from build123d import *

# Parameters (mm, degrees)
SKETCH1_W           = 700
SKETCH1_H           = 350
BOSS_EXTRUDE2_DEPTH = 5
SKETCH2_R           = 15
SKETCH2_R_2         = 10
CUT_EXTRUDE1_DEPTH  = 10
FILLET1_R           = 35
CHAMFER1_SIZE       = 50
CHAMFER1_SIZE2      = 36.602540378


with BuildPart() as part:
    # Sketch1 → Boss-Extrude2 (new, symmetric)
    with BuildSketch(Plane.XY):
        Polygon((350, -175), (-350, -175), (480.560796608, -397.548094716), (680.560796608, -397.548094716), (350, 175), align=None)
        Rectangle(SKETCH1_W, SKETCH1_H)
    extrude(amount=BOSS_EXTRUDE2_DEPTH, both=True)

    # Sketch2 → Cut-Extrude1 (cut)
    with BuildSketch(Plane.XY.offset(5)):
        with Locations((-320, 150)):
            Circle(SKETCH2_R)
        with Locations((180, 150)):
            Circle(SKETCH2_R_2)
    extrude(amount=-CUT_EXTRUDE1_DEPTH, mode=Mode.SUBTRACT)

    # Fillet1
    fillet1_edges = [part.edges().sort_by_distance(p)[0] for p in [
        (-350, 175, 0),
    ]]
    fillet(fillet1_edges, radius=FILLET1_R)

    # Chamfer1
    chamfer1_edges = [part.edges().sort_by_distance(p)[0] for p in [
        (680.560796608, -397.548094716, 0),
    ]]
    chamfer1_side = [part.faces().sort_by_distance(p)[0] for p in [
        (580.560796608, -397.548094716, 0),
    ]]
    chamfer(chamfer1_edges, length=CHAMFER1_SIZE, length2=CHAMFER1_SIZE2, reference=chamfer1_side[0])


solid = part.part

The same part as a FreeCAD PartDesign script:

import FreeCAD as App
import Part
import Sketcher

V = App.Vector
Q = App.Units.Quantity


def edges_at(feature, points):
    """Names of the edges that pass closest to the given points."""
    edges = feature.Shape.Edges
    near = lambda p: min(range(len(edges)), key=lambda i: edges[i].distToShape(Part.Vertex(*p))[0])
    return sorted({f"Edge{near(p) + 1}" for p in points})

doc = App.newDocument("Part")
body = doc.addObject("PartDesign::Body", "Body")

sketch1 = body.newObject("Sketcher::SketchObject", "Sketch")
sketch1.AttachmentSupport = (doc.getObject("XY_Plane"), [""])
sketch1.MapMode = "FlatFace"
sketch1.addGeometry([
    Part.LineSegment(V(-350, -175, 0), V(481, -398, 0)),
    Part.LineSegment(V(481, -398, 0), V(681, -398, 0)),
    Part.LineSegment(V(681, -398, 0), V(350, 175, 0)),
    Part.LineSegment(V(350, 175, 0), V(-350, 175, 0)),
    Part.LineSegment(V(-350, 175, 0), V(-350, -175, 0)),
], False)
sketch1.addConstraint([
    Sketcher.Constraint("Coincident", 0, 2, 1, 1),
    Sketcher.Constraint("Coincident", 1, 2, 2, 1),
    Sketcher.Constraint("Coincident", 2, 2, 3, 1),
    Sketcher.Constraint("Coincident", 3, 2, 4, 1),
    Sketcher.Constraint("Coincident", 4, 2, 0, 1),
    Sketcher.Constraint("Horizontal", 1),
    Sketcher.Constraint("Horizontal", 3),
    Sketcher.Constraint("Vertical", 4),
    Sketcher.Constraint("Symmetric", 2, 2, 4, 2, -1, 1),
    Sketcher.Constraint("DistanceX", 1, 1, 1, 2, 200.0),
    Sketcher.Constraint("DistanceX", 3, 2, 3, 1, 700.0),
    Sketcher.Constraint("DistanceY", 4, 2, 4, 1, 350.0),
    Sketcher.Constraint("Angle", 0, Q("-15 deg")),
    Sketcher.Constraint("Angle", 2, Q("120 deg")),
])
pad1 = body.newObject("PartDesign::Pad", "Pad")
pad1.Profile = sketch1
pad1.Length = 10
pad1.Midplane = True

sketch2 = body.newObject("Sketcher::SketchObject", "Sketch001")
sketch2.AttachmentSupport = (doc.getObject("XY_Plane"), [""])
sketch2.MapMode = "FlatFace"
sketch2.AttachmentOffset = App.Placement(V(0, 0, 5), App.Rotation())
sketch2.addGeometry([
    Part.Circle(V(-320, 150, 0), V(0, 0, 1), 15),
    Part.Circle(V(180, 150, 0), V(0, 0, 1), 10),
], False)
sketch2.addConstraint([
    Sketcher.Constraint("Horizontal", 0, 3, 1, 3),
    Sketcher.Constraint("Diameter", 0, 30.0),
    Sketcher.Constraint("Diameter", 1, 20.0),
    Sketcher.Constraint("DistanceX", 0, 3, -1, 1, 320.0),
    Sketcher.Constraint("DistanceY", -1, 1, 0, 3, 150.0),
    Sketcher.Constraint("DistanceX", -1, 1, 1, 3, 180.0),
])
pocket1 = body.newObject("PartDesign::Pocket", "Pocket")
pocket1.Profile = sketch2
pocket1.Length = 10
doc.recompute()

fillet = body.newObject("PartDesign::Fillet", "Fillet")
fillet.Base = (pocket1, edges_at(pocket1, [(-350, 175, 0)]))
fillet.Radius = 35
doc.recompute()

chamfer = body.newObject("PartDesign::Chamfer", "Chamfer")
chamfer.Base = (fillet, edges_at(fillet, [(680.561, -397.548, 0)]))
chamfer.ChamferType = "Two distances"
chamfer.Size = 50
chamfer.Size2 = 36.60254

doc.recompute()
